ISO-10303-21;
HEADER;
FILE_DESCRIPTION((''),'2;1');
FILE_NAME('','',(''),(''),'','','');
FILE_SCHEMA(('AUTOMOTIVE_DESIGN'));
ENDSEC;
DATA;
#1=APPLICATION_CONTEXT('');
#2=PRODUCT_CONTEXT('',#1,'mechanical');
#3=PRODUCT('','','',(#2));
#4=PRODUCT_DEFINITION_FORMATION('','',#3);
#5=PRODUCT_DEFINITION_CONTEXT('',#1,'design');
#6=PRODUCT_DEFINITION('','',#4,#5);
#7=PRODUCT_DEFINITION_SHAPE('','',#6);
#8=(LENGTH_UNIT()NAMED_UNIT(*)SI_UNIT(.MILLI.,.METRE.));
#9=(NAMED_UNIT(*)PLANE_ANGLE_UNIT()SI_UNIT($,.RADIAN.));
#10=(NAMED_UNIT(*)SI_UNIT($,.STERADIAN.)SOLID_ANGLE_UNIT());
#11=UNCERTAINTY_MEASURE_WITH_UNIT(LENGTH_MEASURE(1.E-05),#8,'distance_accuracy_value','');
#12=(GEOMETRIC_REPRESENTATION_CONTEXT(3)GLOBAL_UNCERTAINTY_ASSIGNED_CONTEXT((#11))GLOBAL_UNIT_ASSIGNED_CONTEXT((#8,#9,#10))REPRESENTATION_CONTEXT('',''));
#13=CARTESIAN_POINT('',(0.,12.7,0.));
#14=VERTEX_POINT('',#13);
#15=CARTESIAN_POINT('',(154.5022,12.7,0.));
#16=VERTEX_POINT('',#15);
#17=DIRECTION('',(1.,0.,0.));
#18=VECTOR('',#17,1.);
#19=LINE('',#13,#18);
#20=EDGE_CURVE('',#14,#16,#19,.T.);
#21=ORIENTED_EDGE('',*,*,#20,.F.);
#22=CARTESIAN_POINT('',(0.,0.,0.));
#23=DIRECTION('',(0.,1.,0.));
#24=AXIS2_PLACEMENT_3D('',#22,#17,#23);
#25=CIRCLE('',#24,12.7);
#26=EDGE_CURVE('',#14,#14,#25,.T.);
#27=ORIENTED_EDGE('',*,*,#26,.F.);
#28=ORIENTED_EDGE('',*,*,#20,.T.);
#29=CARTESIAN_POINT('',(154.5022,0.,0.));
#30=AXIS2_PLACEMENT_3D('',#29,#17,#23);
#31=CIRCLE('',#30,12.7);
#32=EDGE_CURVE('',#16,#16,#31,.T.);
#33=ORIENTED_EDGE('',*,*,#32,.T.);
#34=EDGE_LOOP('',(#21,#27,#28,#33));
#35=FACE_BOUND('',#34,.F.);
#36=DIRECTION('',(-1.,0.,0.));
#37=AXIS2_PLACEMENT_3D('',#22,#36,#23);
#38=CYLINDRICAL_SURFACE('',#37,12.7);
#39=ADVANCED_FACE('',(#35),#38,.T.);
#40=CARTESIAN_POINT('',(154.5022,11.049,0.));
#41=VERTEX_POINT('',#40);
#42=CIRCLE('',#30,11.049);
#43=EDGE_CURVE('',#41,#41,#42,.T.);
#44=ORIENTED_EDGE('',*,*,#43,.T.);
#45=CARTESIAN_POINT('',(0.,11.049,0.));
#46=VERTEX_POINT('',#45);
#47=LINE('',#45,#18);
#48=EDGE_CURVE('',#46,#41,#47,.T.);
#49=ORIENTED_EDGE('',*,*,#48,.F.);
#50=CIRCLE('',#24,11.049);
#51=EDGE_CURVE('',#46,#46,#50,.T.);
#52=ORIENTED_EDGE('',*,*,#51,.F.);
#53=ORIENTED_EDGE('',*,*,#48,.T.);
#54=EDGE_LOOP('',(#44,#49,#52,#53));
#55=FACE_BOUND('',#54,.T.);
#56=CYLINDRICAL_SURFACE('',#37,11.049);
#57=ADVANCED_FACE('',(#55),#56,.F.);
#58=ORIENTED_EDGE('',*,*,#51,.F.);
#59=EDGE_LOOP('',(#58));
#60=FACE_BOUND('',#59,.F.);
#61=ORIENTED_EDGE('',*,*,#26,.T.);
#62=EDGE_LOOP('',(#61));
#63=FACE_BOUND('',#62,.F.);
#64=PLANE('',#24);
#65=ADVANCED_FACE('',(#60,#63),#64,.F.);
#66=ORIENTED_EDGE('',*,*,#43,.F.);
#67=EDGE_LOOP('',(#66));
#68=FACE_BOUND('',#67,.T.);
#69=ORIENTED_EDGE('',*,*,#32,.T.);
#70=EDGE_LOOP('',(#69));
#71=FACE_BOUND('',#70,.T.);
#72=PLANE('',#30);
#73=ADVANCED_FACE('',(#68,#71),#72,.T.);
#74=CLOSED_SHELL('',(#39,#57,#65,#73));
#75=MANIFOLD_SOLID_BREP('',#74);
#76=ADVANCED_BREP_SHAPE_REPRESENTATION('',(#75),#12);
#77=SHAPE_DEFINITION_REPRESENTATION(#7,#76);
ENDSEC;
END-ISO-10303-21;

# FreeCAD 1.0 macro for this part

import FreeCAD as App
import Part
import Sketcher
from FreeCAD import Vector
Q = App.Units.Quantity

doc = App.newDocument("Part")
body = doc.addObject("PartDesign::Body", "Body")

sketch1 = body.newObject("Sketcher::SketchObject", "Sketch")
sketch1.AttachmentSupport = (doc.getObject("YZ_Plane"), [""])
sketch1.MapMode = "FlatFace"
sketch1.addGeometry([
    Part.Circle(Vector(0, 0, 0), Vector(0, 0, 1), 13),
    Part.Circle(Vector(0, 0, 0), Vector(0, 0, 1), 11),
], False)
sketch1.addConstraint([
    Sketcher.Constraint("Coincident", 0, 3, -1, 1),
    Sketcher.Constraint("Coincident", 1, 3, -1, 1),
    Sketcher.Constraint("Diameter", 0, Q("1 in")),
    Sketcher.Constraint("Diameter", 1, Q("0.87 in")),
])
pad1 = body.newObject("PartDesign::Pad", "Pad")
pad1.Profile = sketch1
pad1.Length = 154.5022

doc.recompute()
